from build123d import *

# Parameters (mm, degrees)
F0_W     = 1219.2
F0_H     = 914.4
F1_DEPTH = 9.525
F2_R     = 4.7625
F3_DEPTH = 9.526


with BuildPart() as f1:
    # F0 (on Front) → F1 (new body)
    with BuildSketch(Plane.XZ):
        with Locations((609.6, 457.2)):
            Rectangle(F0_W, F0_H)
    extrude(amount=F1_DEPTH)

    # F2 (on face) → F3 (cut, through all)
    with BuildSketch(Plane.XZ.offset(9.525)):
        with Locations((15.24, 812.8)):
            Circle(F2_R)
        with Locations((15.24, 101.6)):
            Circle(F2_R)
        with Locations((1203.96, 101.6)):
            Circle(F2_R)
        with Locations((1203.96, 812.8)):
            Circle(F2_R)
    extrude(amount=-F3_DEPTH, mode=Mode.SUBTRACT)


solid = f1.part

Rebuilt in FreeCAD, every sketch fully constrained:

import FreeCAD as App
import Part
import Sketcher
from FreeCAD import Vector
Q = App.Units.Quantity

doc = App.newDocument("Part")
body = doc.addObject("PartDesign::Body", "Body")

# Sketch on XZ plane
sketch1 = body.newObject("Sketcher::SketchObject", "Sketch")
sketch1.AttachmentSupport = (doc.getObject("XZ_Plane"), [""])
sketch1.MapMode = "FlatFace"
sketch1.addGeometry(Part.LineSegment(Vector(0, 914, 0), Vector(0, 0, 0)), False)
sketch1.addGeometry(Part.LineSegment(Vector(0, 0, 0), Vector(1219, 0, 0)), False)
sketch1.addGeometry(Part.LineSegment(Vector(1219, 0, 0), Vector(1219, 914, 0)), False)
sketch1.addGeometry(Part.LineSegment(Vector(1219, 914, 0), Vector(0, 914, 0)), False)
sketch1.addConstraint(Sketcher.Constraint("Coincident", 0, 2, 1, 1))
sketch1.addConstraint(Sketcher.Constraint("Coincident", 1, 2, 2, 1))
sketch1.addConstraint(Sketcher.Constraint("Coincident", 2, 2, 3, 1))
sketch1.addConstraint(Sketcher.Constraint("Coincident", 3, 2, 0, 1))
sketch1.addConstraint(Sketcher.Constraint("Vertical", 0))
sketch1.addConstraint(Sketcher.Constraint("Horizontal", 1))
sketch1.addConstraint(Sketcher.Constraint("Vertical", 2))
sketch1.addConstraint(Sketcher.Constraint("Horizontal", 3))
sketch1.addConstraint(Sketcher.Constraint("Coincident", 0, 2, -1, 1))
sketch1.addConstraint(Sketcher.Constraint("DistanceX", 1, 1, 1, 2, Q("48 in")))
sketch1.addConstraint(Sketcher.Constraint("DistanceY", 0, 2, 0, 1, Q("36 in")))
pad1 = body.newObject("PartDesign::Pad", "Pad")
pad1.Profile = sketch1
pad1.Length = Q("0.375 in")

# Sketch on XZ plane
sketch2 = body.newObject("Sketcher::SketchObject", "Sketch001")
sketch2.AttachmentSupport = (doc.getObject("XZ_Plane"), [""])
sketch2.MapMode = "FlatFace"
sketch2.AttachmentOffset = App.Placement(Vector(0, 0, 0.375 * 25.4), App.Rotation())
sketch2.addGeometry(Part.Circle(Vector(15.2, 812.8, 0), Vector(0, 0, 1), 4.8), False)
sketch2.addGeometry(Part.Circle(Vector(15.2, 101.6, 0), Vector(0, 0, 1), 4.8), False)
sketch2.addGeometry(Part.Circle(Vector(1204, 101.6, 0), Vector(0, 0, 1), 4.8), False)
sketch2.addGeometry(Part.Circle(Vector(1204, 812.8, 0), Vector(0, 0, 1), 4.8), False)
sketch2.addConstraint(Sketcher.Constraint("Equal", 0, 1))
sketch2.addConstraint(Sketcher.Constraint("Equal", 1, 2))
sketch2.addConstraint(Sketcher.Constraint("Equal", 2, 3))
sketch2.addConstraint(Sketcher.Constraint("Horizontal", 1, 3, 2, 3))
sketch2.addConstraint(Sketcher.Constraint("Horizontal", 0, 3, 3, 3))
sketch2.addConstraint(Sketcher.Constraint("Vertical", 0, 3, 1, 3))
sketch2.addConstraint(Sketcher.Constraint("Vertical", 2, 3, 3, 3))
sketch2.addConstraint(Sketcher.Constraint("Diameter", 0, Q("0.375 in")))
sketch2.addConstraint(Sketcher.Constraint("DistanceY", -1, 1, 0, 3, Q("32 in")))
sketch2.addConstraint(Sketcher.Constraint("DistanceY", -1, 1, 1, 3, Q("4 in")))
sketch2.addConstraint(Sketcher.Constraint("DistanceX", -1, 1, 0, 3, Q("0.6 in")))
sketch2.addConstraint(Sketcher.Constraint("DistanceX", -1, 1, 2, 3, Q("47.4 in")))
pocket1 = body.newObject("PartDesign::Pocket", "Pocket")
pocket1.Profile = sketch2
pocket1.Type = "ThroughAll"

doc.recompute()
